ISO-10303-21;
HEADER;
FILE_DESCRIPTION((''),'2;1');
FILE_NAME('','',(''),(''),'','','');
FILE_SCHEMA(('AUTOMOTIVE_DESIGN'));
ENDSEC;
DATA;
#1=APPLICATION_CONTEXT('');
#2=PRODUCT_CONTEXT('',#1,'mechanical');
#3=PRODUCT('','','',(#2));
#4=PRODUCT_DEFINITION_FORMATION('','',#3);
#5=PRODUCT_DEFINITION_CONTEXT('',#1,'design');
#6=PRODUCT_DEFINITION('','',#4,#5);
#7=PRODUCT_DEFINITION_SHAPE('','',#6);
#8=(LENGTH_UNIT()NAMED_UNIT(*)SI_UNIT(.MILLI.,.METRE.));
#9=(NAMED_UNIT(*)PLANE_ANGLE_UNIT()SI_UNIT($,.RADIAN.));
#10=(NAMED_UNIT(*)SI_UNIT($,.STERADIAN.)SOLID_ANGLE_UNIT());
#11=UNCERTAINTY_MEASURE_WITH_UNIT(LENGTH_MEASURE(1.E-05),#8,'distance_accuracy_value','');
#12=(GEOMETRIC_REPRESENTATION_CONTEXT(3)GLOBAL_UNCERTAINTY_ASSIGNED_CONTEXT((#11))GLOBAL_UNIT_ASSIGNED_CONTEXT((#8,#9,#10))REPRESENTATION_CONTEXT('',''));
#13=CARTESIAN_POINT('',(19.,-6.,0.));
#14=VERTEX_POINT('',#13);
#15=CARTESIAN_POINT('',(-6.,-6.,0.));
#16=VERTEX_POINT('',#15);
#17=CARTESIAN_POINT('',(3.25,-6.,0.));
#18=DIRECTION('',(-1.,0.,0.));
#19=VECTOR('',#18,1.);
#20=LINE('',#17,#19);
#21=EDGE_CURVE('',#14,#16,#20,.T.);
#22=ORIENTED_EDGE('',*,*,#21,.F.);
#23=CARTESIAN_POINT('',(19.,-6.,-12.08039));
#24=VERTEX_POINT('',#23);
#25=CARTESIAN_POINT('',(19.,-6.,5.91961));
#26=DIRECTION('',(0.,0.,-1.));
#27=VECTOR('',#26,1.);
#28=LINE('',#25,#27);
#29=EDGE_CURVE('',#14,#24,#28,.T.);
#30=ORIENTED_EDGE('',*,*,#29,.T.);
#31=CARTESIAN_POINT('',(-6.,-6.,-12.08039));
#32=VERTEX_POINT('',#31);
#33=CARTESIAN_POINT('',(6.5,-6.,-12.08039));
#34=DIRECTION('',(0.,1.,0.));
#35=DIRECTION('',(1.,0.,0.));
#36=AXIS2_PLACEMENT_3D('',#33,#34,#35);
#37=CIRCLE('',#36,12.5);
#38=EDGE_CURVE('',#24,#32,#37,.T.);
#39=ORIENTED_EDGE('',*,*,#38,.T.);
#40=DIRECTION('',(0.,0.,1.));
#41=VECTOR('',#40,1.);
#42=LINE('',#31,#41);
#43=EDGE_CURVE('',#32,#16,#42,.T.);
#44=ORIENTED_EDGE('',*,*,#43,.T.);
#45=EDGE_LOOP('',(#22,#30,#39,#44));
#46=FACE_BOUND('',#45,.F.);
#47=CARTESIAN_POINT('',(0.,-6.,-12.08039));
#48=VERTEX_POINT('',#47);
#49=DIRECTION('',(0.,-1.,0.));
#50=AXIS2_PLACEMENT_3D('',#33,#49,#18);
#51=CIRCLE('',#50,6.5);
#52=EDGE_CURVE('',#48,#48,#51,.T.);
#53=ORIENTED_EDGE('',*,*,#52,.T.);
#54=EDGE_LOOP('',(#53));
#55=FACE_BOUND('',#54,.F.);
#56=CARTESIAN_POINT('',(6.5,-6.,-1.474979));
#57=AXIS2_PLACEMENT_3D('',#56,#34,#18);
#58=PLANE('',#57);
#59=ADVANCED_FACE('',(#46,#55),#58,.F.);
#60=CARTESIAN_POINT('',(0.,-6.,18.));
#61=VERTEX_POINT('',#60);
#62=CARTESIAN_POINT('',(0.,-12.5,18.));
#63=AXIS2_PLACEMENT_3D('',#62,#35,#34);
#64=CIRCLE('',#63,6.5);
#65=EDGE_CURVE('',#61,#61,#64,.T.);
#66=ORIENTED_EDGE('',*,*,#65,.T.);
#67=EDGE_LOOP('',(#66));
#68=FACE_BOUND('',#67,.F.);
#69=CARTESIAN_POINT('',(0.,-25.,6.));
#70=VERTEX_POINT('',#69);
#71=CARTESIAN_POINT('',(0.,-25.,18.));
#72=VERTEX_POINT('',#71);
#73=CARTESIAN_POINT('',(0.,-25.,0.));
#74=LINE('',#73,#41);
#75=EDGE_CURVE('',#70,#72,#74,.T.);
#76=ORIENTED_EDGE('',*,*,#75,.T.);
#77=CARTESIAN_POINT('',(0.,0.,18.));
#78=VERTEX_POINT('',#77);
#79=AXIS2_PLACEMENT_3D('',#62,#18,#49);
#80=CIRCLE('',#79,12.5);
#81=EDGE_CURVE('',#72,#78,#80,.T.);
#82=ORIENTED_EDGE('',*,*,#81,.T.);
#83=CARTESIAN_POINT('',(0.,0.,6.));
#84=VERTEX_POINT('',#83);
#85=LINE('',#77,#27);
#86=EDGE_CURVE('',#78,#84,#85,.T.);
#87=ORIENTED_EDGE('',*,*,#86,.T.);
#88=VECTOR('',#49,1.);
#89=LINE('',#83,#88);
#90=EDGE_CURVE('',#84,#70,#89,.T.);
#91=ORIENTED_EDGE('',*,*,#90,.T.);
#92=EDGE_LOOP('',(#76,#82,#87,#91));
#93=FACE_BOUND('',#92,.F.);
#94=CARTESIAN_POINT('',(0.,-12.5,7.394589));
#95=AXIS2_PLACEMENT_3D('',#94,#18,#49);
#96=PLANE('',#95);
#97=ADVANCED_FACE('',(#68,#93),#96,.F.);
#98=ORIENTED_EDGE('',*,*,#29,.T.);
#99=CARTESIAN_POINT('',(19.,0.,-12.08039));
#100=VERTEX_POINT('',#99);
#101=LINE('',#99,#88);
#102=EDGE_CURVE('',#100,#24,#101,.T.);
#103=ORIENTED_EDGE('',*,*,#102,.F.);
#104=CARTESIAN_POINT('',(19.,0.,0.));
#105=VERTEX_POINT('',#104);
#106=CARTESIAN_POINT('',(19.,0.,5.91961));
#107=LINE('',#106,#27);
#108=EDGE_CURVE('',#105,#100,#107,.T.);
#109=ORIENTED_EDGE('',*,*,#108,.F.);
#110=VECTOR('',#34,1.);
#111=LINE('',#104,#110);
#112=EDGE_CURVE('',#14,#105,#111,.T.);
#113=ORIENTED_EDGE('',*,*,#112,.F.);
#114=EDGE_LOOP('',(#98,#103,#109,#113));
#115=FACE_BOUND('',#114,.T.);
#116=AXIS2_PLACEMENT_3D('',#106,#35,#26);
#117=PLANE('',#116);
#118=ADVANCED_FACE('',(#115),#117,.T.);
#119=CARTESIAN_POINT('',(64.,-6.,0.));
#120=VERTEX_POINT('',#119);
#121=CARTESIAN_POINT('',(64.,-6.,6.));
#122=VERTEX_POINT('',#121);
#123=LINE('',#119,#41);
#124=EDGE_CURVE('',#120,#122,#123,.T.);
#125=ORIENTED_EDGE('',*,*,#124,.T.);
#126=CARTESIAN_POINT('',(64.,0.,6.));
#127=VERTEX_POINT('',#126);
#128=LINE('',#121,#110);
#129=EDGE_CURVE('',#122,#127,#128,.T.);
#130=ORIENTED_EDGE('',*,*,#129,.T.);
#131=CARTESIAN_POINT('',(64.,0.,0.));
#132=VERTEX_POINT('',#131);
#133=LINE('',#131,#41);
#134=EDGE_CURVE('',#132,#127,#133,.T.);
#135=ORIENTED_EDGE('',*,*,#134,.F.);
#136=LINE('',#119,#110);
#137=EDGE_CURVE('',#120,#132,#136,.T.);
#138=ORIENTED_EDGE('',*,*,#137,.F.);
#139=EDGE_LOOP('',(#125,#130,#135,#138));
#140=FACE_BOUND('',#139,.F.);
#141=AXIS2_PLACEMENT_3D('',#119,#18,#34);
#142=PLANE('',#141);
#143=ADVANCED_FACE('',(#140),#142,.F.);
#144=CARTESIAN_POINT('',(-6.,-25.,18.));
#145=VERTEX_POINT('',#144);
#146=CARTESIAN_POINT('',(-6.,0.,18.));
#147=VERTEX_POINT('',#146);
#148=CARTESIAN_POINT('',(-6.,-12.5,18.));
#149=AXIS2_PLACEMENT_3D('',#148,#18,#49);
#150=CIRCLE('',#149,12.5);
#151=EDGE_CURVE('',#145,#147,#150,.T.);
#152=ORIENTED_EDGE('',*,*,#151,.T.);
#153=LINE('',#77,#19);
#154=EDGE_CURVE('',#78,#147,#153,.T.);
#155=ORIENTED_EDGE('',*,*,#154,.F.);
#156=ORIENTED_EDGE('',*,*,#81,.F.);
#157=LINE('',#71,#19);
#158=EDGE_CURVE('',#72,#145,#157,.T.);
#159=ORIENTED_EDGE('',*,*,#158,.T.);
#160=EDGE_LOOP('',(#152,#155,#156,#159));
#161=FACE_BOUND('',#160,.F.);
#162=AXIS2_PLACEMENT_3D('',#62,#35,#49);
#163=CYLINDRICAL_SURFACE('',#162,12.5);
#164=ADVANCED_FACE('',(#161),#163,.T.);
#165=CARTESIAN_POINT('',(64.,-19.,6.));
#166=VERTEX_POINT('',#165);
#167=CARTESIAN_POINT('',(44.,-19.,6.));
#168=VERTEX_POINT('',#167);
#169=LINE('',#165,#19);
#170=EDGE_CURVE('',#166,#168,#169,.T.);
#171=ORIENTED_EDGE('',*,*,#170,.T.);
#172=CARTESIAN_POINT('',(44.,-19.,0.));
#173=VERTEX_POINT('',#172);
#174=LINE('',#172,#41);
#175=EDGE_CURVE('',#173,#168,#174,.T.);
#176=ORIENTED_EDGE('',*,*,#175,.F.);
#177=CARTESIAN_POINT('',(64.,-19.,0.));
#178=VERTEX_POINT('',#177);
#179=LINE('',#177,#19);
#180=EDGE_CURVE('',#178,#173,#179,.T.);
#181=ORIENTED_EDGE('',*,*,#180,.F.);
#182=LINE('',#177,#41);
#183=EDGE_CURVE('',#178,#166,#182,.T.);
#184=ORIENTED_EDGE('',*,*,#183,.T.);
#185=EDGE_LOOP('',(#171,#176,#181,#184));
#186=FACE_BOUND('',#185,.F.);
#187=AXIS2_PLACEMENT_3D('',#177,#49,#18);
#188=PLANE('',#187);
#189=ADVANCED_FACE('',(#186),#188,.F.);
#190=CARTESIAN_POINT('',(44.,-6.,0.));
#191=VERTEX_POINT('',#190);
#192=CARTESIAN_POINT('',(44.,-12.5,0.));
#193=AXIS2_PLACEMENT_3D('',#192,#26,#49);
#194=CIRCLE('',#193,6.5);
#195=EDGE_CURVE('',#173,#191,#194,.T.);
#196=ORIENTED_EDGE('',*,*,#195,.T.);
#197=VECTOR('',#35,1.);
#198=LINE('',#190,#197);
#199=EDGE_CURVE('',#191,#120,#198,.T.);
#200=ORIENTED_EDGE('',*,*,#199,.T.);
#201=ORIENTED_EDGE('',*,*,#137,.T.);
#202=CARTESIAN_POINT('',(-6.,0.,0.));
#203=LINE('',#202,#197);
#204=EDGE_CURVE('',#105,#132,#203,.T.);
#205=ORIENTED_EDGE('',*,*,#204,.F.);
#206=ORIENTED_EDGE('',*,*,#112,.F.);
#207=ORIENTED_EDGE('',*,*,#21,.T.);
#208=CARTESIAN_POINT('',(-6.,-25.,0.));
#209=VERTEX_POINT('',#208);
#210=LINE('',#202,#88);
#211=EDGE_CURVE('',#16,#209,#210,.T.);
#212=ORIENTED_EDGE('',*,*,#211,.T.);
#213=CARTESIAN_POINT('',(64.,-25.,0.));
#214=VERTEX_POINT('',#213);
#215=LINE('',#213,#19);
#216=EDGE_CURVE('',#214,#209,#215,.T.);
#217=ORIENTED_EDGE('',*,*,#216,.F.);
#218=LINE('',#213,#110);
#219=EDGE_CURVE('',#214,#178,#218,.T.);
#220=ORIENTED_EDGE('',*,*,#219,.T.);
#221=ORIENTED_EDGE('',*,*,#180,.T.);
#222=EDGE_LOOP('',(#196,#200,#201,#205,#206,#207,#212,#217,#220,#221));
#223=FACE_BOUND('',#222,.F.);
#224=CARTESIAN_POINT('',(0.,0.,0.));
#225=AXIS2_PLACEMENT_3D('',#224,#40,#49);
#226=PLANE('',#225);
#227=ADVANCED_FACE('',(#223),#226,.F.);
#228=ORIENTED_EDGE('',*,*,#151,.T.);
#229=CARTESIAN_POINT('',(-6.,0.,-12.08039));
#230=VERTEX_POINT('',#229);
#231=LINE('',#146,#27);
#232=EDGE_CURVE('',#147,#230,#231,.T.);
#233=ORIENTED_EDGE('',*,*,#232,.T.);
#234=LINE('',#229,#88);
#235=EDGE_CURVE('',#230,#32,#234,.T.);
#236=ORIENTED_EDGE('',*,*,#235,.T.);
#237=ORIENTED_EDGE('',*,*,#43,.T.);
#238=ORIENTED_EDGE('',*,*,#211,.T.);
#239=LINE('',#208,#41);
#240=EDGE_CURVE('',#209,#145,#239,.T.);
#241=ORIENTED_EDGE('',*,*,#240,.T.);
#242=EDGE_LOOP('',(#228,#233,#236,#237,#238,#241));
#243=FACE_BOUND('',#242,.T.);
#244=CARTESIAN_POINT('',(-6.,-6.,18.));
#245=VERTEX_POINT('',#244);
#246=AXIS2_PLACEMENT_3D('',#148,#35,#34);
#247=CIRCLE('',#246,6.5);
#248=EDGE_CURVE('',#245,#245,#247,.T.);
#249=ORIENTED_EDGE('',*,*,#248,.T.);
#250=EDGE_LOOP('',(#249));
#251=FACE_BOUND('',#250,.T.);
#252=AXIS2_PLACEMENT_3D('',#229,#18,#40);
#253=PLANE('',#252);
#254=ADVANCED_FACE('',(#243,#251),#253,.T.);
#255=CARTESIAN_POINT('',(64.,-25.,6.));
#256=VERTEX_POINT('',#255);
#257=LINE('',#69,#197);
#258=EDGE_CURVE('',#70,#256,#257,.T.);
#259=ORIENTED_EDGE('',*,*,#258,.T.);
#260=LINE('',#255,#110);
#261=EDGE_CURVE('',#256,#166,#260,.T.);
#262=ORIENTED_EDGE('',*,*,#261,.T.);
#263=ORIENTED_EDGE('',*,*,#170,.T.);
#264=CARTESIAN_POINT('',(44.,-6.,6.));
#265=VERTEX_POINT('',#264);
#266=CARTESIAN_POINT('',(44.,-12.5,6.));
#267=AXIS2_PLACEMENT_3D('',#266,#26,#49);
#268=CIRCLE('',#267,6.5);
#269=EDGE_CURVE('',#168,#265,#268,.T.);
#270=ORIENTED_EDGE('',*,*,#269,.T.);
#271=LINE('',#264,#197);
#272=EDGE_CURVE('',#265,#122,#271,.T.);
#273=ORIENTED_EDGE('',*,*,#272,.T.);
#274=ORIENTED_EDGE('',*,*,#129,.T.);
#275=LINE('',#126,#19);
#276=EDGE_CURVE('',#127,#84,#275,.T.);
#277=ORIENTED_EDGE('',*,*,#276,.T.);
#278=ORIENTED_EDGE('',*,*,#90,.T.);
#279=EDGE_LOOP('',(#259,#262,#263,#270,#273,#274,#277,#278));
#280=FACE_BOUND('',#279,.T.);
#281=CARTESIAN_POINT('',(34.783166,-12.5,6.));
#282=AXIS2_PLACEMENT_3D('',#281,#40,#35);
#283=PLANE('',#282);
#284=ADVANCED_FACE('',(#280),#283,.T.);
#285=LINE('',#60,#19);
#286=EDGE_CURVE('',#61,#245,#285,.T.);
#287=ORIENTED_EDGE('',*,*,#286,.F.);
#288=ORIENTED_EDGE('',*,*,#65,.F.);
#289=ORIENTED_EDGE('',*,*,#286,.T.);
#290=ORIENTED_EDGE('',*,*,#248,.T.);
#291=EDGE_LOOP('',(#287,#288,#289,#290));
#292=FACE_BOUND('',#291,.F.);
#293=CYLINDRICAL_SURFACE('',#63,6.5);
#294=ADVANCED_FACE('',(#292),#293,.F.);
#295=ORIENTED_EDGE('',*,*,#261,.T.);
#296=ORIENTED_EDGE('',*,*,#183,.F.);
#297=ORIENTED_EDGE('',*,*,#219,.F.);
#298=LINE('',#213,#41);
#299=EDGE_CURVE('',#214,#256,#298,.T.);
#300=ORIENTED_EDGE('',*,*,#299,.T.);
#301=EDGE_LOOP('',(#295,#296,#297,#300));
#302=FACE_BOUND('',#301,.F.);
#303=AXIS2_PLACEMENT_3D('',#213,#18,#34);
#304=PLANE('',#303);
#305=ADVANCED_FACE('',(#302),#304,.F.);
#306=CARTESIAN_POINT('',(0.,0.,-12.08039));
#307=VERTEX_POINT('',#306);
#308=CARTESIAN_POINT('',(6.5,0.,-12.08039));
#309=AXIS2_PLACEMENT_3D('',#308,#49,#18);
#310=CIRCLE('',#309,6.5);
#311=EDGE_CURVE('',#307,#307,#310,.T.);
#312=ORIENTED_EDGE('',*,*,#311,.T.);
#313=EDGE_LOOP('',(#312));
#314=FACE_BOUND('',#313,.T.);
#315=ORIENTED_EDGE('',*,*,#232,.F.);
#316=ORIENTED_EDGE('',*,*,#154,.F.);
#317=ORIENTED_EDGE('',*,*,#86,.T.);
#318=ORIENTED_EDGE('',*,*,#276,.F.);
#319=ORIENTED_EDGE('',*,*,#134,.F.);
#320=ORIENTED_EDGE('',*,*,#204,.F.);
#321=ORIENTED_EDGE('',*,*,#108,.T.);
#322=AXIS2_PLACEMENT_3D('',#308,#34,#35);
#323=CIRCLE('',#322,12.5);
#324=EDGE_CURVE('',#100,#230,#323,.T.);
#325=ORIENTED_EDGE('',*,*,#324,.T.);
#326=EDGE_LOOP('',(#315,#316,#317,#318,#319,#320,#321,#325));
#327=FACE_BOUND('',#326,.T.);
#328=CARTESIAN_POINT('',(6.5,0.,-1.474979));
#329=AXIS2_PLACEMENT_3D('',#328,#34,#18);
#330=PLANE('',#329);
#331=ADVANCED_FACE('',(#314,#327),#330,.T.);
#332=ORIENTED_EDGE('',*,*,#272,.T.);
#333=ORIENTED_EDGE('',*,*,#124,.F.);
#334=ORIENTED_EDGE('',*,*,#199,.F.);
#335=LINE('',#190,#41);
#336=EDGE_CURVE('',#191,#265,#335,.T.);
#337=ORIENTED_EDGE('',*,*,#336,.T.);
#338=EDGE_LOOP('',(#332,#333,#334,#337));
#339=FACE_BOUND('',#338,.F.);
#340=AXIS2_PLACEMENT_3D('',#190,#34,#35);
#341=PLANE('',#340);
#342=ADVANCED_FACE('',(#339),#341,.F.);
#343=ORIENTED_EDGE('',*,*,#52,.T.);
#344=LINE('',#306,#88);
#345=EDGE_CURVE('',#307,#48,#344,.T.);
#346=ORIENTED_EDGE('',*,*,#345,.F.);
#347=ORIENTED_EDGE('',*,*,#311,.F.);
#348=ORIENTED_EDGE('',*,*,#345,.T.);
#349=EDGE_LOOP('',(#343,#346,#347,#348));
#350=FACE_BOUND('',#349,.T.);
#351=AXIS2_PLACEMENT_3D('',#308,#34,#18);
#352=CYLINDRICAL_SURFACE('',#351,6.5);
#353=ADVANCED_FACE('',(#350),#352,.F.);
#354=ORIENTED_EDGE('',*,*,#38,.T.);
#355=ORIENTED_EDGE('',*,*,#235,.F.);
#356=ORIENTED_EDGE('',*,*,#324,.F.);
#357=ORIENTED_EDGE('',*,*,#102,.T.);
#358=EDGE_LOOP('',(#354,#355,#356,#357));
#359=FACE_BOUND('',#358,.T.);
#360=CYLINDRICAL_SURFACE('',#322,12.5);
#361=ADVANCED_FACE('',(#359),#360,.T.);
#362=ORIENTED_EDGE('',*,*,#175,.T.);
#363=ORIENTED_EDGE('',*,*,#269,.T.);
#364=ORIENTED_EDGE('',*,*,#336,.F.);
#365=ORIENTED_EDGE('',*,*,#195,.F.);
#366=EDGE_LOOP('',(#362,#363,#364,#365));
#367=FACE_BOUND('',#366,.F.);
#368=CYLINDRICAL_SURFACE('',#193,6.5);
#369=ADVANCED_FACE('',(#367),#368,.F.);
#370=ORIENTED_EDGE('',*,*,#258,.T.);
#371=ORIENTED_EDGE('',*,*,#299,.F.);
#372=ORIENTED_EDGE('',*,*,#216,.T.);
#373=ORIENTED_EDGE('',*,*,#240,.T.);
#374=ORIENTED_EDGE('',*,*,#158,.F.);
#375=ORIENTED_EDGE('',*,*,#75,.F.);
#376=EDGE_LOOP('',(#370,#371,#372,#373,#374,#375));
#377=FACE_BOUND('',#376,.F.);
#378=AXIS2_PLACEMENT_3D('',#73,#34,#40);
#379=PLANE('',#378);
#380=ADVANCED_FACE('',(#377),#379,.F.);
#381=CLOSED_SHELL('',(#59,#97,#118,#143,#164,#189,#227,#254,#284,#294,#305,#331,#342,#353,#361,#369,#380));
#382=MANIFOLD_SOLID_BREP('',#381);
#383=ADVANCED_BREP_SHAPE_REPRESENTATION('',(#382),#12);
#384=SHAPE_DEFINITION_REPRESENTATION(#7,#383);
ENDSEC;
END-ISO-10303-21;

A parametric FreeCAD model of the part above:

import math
import FreeCAD as App
import Part
import Sketcher

V = App.Vector
Q = App.Units.Quantity

doc = App.newDocument("Part")
params = doc.addObject("Spreadsheet::Sheet", "Params")
for row, (alias, value) in enumerate([
    ("sketch1_radius", "6.5 mm"),
    ("sketch1_width", "64 mm"),
    ("sketch1_width2", "20 mm"),
    ("sketch1_height", "25 mm"),
    ("pad1_length", "6 mm"),
    ("sketch2_diameter", "13 mm"),
    ("sketch2_radius", "12.5 mm"),
    ("sketch2_height", "18 mm"),
    ("pad2_length", "6 mm"),
    ("sketch3_diameter", "13 mm"),
    ("sketch3_radius", "12.5 mm"),
    ("sketch3_height", "18 mm"),
    ("pad3_length", "6 mm"),
], start=1):
    params.set(f"A{row}", alias)
    params.set(f"B{row}", "=" + value)
    params.setAlias(f"B{row}", alias)

body = doc.addObject("PartDesign::Body", "Body")

sketch1 = body.newObject("Sketcher::SketchObject", "Sketch")
sketch1.AttachmentSupport = (doc.getObject("XY_Plane"), [""])
sketch1.MapMode = "FlatFace"
sketch1.addGeometry([
    Part.LineSegment(V(64, 0, 0), V(0, 0, 0)),
    Part.LineSegment(V(0, 0, 0), V(0, -25, 0)),
    Part.LineSegment(V(0, -25, 0), V(64, -25, 0)),
    Part.LineSegment(V(64, -25, 0), V(64, -19, 0)),
    Part.LineSegment(V(64, -19, 0), V(44, -19, 0)),
    Part.ArcOfCircle(Part.Circle(V(44, -12.5, 0), V(0, 0, 1), 6.5), math.radians(90), math.radians(270)),
    Part.LineSegment(V(44, -6, 0), V(64, -6, 0)),
    Part.LineSegment(V(64, -6, 0), V(64, 0, 0)),
], False)
sketch1.addConstraint([
    Sketcher.Constraint("Coincident", 0, 2, 1, 1),
    Sketcher.Constraint("Coincident", 1, 2, 2, 1),
    Sketcher.Constraint("Coincident", 2, 2, 3, 1),
    Sketcher.Constraint("Coincident", 3, 2, 4, 1),
    Sketcher.Constraint("Tangent", 4, 2, 5, 2),
    Sketcher.Constraint("Tangent", 5, 1, 6, 1),
    Sketcher.Constraint("Coincident", 6, 2, 7, 1),
    Sketcher.Constraint("Coincident", 7, 2, 0, 1),
    Sketcher.Constraint("Horizontal", 0),
    Sketcher.Constraint("Vertical", 1),
    Sketcher.Constraint("Horizontal", 2),
    Sketcher.Constraint("Vertical", 3),
    Sketcher.Constraint("Horizontal", 4),
    Sketcher.Constraint("Horizontal", 6),
    Sketcher.Constraint("Vertical", 7),
    Sketcher.Constraint("Coincident", 0, 2, -1, 1),
    Sketcher.Constraint("Vertical", 3, 2, 6, 2),
    Sketcher.Constraint("Equal", 3, 7),
    Sketcher.Constraint("Radius", 5, Q("6.5 mm")),
    Sketcher.Constraint("DistanceX", 0, 2, 0, 1, Q("64 mm")),
    Sketcher.Constraint("DistanceX", 4, 2, 4, 1, Q("20 mm")),
    Sketcher.Constraint("DistanceY", 1, 2, 1, 1, Q("25 mm")),
])
sketch1.setExpression("Constraints[18]", "Params.sketch1_radius")
sketch1.setExpression("Constraints[19]", "Params.sketch1_width")
sketch1.setExpression("Constraints[20]", "Params.sketch1_width2")
sketch1.setExpression("Constraints[21]", "Params.sketch1_height")
pad1 = body.newObject("PartDesign::Pad", "Pad")
pad1.Profile = sketch1
pad1.setExpression("Length", "Params.pad1_length")

sketch2 = body.newObject("Sketcher::SketchObject", "Sketch001")
sketch2.AttachmentSupport = (doc.getObject("YZ_Plane"), [""])
sketch2.MapMode = "FlatFace"
sketch2.addGeometry([
    Part.LineSegment(V(0, 0, 0), V(-25, 0, 0)),
    Part.LineSegment(V(-25, 0, 0), V(-25, 18, 0)),
    Part.ArcOfCircle(Part.Circle(V(-12.5, 18, 0), V(0, 0, 1), 12.5), math.radians(0), math.radians(180)),
    Part.LineSegment(V(0, 18, 0), V(0, 0, 0)),
    Part.Circle(V(-12.5, 18, 0), V(0, 0, 1), 6.5),
], False)
sketch2.addConstraint([
    Sketcher.Constraint("Coincident", 0, 2, 1, 1),
    Sketcher.Constraint("Tangent", 1, 2, 2, 2),
    Sketcher.Constraint("Tangent", 2, 1, 3, 1),
    Sketcher.Constraint("Coincident", 3, 2, 0, 1),
    Sketcher.Constraint("Horizontal", 0),
    Sketcher.Constraint("Vertical", 1),
    Sketcher.Constraint("Vertical", 3),
    Sketcher.Constraint("Coincident", 3, 2, -1, 1),
    Sketcher.Constraint("Coincident", 4, 3, 2, 3),
    Sketcher.Constraint("Diameter", 4, Q("13 mm")),
    Sketcher.Constraint("Radius", 2, Q("12.5 mm")),
    Sketcher.Constraint("DistanceY", 1, 1, 1, 2, Q("18 mm")),
])
sketch2.setExpression("Constraints[9]", "Params.sketch2_diameter")
sketch2.setExpression("Constraints[10]", "Params.sketch2_radius")
sketch2.setExpression("Constraints[11]", "Params.sketch2_height")
pad2 = body.newObject("PartDesign::Pad", "Pad001")
pad2.Profile = sketch2
pad2.setExpression("Length", "Params.pad2_length")
pad2.Reversed = True

sketch3 = body.newObject("Sketcher::SketchObject", "Sketch002")
sketch3.AttachmentSupport = (doc.getObject("XZ_Plane"), [""])
sketch3.MapMode = "FlatFace"
sketch3.addGeometry([
    Part.LineSegment(V(-6, -12.08039, 0), V(-6, 5.91961, 0)),
    Part.LineSegment(V(-6, 5.91961, 0), V(19, 5.91961, 0)),
    Part.LineSegment(V(19, 5.91961, 0), V(19, -12.08039, 0)),
    Part.ArcOfCircle(Part.Circle(V(6.5, -12.08039, 0), V(0, 0, 1), 12.5), math.radians(180), math.radians(360)),
    Part.Circle(V(6.5, -12.08039, 0), V(0, 0, 1), 6.5),
], False)
sketch3.addConstraint([
    Sketcher.Constraint("Coincident", 0, 2, 1, 1),
    Sketcher.Constraint("Coincident", 1, 2, 2, 1),
    Sketcher.Constraint("Tangent", 2, 2, 3, 2),
    Sketcher.Constraint("Tangent", 3, 1, 0, 1),
    Sketcher.Constraint("Vertical", 0),
    Sketcher.Constraint("Horizontal", 1),
    Sketcher.Constraint("Vertical", 2),
    Sketcher.Constraint("Coincident", 4, 3, 3, 3),
    Sketcher.Constraint("Diameter", 4, Q("13 mm")),
    Sketcher.Constraint("Radius", 3, Q("12.5 mm")),
    Sketcher.Constraint("DistanceY", 0, 1, 0, 2, Q("18 mm")),
    Sketcher.Constraint("DistanceX", 0, 2, -1, 1, Q("6 mm")),
    Sketcher.Constraint("DistanceY", 3, 3, -1, 1, Q("12.08039 mm")),
])
sketch3.setExpression("Constraints[8]", "Params.sketch3_diameter")
sketch3.setExpression("Constraints[9]", "Params.sketch3_radius")
sketch3.setExpression("Constraints[10]", "Params.sketch3_height")
pad3 = body.newObject("PartDesign::Pad", "Pad002")
pad3.Profile = sketch3
pad3.setExpression("Length", "Params.pad3_length")

doc.recompute()
